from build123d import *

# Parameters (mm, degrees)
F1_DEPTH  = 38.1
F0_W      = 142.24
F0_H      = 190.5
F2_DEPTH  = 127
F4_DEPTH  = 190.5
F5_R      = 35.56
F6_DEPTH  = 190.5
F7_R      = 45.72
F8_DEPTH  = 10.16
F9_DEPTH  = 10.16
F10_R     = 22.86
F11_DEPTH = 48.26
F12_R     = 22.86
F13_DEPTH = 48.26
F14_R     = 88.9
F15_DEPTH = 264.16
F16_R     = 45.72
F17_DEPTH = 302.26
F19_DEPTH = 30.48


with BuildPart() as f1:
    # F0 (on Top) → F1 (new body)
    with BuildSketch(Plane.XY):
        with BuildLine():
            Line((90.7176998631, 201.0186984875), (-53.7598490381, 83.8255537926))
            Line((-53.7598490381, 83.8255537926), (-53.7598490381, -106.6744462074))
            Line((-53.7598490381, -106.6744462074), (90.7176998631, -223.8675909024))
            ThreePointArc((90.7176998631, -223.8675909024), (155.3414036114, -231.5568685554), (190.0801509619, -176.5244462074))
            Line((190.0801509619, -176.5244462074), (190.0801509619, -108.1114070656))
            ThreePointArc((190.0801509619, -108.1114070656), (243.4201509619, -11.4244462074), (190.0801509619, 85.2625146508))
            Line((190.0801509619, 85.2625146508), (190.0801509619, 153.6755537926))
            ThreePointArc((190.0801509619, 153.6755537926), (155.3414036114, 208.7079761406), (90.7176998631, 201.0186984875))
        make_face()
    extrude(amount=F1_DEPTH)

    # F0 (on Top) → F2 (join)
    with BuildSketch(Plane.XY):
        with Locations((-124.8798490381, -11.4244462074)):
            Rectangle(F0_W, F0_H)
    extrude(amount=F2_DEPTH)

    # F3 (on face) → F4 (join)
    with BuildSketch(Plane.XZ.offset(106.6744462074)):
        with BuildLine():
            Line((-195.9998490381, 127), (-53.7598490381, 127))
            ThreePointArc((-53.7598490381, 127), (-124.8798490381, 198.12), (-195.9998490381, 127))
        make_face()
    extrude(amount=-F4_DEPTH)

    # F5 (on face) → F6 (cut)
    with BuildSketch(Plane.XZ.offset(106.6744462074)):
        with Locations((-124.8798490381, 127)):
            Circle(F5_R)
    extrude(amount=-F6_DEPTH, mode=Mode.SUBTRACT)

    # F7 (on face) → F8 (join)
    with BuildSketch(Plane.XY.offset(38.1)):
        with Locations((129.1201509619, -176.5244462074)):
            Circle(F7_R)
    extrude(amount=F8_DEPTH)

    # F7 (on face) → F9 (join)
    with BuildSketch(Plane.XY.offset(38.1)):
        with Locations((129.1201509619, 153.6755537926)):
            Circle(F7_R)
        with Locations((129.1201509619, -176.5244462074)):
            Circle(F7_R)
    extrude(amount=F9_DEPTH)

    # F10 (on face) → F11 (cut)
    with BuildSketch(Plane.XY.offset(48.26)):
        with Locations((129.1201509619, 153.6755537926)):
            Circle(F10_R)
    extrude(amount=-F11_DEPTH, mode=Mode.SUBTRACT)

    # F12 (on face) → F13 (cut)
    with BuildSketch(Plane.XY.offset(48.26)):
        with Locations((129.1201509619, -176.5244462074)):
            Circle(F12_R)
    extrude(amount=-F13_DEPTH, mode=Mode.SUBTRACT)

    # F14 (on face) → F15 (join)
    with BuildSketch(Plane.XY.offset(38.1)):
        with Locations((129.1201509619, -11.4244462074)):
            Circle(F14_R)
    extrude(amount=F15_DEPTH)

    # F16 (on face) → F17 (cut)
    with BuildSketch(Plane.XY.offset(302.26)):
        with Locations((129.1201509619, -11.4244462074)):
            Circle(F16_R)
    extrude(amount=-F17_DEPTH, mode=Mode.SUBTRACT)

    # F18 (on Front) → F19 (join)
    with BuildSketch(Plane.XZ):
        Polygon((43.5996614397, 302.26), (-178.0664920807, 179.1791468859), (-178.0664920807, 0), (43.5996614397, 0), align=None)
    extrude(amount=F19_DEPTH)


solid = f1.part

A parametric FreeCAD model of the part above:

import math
import FreeCAD as App
import Part
import Sketcher
Q = App.Units.Quantity

doc = App.newDocument("Part")
body = doc.addObject("PartDesign::Body", "Body")

# Sketch on XY plane
sketch1 = doc.addObject("Sketcher::SketchObject", "Sketch")
body.addObject(sketch1)
sketch1.AttachmentSupport = (doc.XY_Plane, [""])
sketch1.MapMode = "FlatFace"
sketch1.addGeometry(Part.LineSegment(App.Vector(91, 201, 0), App.Vector(-54, 84, 0)), False)
sketch1.addGeometry(Part.LineSegment(App.Vector(-54, 84, 0), App.Vector(-54, -107, 0)), False)
sketch1.addGeometry(Part.LineSegment(App.Vector(-54, -107, 0), App.Vector(91, -224, 0)), False)
sketch1.addGeometry(Part.ArcOfCircle(Part.Circle(App.Vector(129, -177, 0), App.Vector(0, 0, 1), 61), math.radians(-129), math.radians(0)), False)
sketch1.addGeometry(Part.LineSegment(App.Vector(190, -177, 0), App.Vector(190, -108, 0)), False)
sketch1.addGeometry(Part.ArcOfCircle(Part.Circle(App.Vector(129, -11, 0), App.Vector(0, 0, 1), 114), math.radians(-58), math.radians(58)), False)
sketch1.addGeometry(Part.LineSegment(App.Vector(190, 85, 0), App.Vector(190, 154, 0)), False)
sketch1.addGeometry(Part.ArcOfCircle(Part.Circle(App.Vector(129, 154, 0), App.Vector(0, 0, 1), 61), math.radians(0), math.radians(129)), False)
sketch1.addConstraint(Sketcher.Constraint("Coincident", 0, 2, 1, 1))
sketch1.addConstraint(Sketcher.Constraint("Coincident", 1, 2, 2, 1))
sketch1.addConstraint(Sketcher.Constraint("Tangent", 2, 2, 3, 1))
sketch1.addConstraint(Sketcher.Constraint("Tangent", 3, 2, 4, 1))
sketch1.addConstraint(Sketcher.Constraint("Coincident", 4, 2, 5, 1))
sketch1.addConstraint(Sketcher.Constraint("Coincident", 5, 2, 6, 1))
sketch1.addConstraint(Sketcher.Constraint("Tangent", 6, 2, 7, 1))
sketch1.addConstraint(Sketcher.Constraint("Tangent", 7, 2, 0, 1))
sketch1.addConstraint(Sketcher.Constraint("Vertical", 1))
sketch1.addConstraint(Sketcher.Constraint("Vertical", 4))
sketch1.addConstraint(Sketcher.Constraint("Vertical", 6))
sketch1.addConstraint(Sketcher.Constraint("Equal", 3, 7))
sketch1.addConstraint(Sketcher.Constraint("Vertical", 3, 3, 5, 3))
sketch1.addConstraint(Sketcher.Constraint("Vertical", 5, 3, 7, 3))
sketch1.addConstraint(Sketcher.Constraint("Vertical", 2, 2, 7, 2))
sketch1.addConstraint(Sketcher.Constraint("Equal", 4, 6))
sketch1.addConstraint(Sketcher.Constraint("Radius", 3, Q("2.4 in")))
sketch1.addConstraint(Sketcher.Constraint("Radius", 5, Q("4.5 in")))
sketch1.addConstraint(Sketcher.Constraint("DistanceY", 1, 2, 1, 1, Q("7.5 in")))
sketch1.addConstraint(Sketcher.Constraint("DistanceY", 3, 3, 7, 3, Q("13 in")))
sketch1.addConstraint(Sketcher.Constraint("DistanceX", 0, 2, 7, 3, Q("7.2 in")))
sketch1.addConstraint(Sketcher.Constraint("DistanceX", -1, 1, 2, 2, Q("90.7177 mm")))
sketch1.addConstraint(Sketcher.Constraint("DistanceY", -1, 1, 7, 2, Q("201.018698 mm")))
pad1 = doc.addObject("PartDesign::Pad", "Pad")
body.addObject(pad1)
pad1.Profile = sketch1
pad1.Length = Q("1.5 in")

# Sketch on XY plane
sketch2 = doc.addObject("Sketcher::SketchObject", "Sketch001")
body.addObject(sketch2)
sketch2.AttachmentSupport = (doc.XY_Plane, [""])
sketch2.MapMode = "FlatFace"
sketch2.addGeometry(Part.LineSegment(App.Vector(-196, 84, 0), App.Vector(-196, -107, 0)), False)
sketch2.addGeometry(Part.LineSegment(App.Vector(-196, -107, 0), App.Vector(-54, -107, 0)), False)
sketch2.addGeometry(Part.LineSegment(App.Vector(-54, -107, 0), App.Vector(-54, 84, 0)), False)
sketch2.addGeometry(Part.LineSegment(App.Vector(-54, 84, 0), App.Vector(-196, 84, 0)), False)
sketch2.addConstraint(Sketcher.Constraint("Coincident", 0, 2, 1, 1))
sketch2.addConstraint(Sketcher.Constraint("Coincident", 1, 2, 2, 1))
sketch2.addConstraint(Sketcher.Constraint("Coincident", 2, 2, 3, 1))
sketch2.addConstraint(Sketcher.Constraint("Coincident", 3, 2, 0, 1))
sketch2.addConstraint(Sketcher.Constraint("Vertical", 0))
sketch2.addConstraint(Sketcher.Constraint("Horizontal", 1))
sketch2.addConstraint(Sketcher.Constraint("Vertical", 2))
sketch2.addConstraint(Sketcher.Constraint("Horizontal", 3))
sketch2.addConstraint(Sketcher.Constraint("DistanceX", 1, 1, 1, 2, Q("5.6 in")))
sketch2.addConstraint(Sketcher.Constraint("DistanceY", 0, 2, 0, 1, Q("7.5 in")))
sketch2.addConstraint(Sketcher.Constraint("DistanceX", 0, 2, -1, 1, Q("195.999849 mm")))
sketch2.addConstraint(Sketcher.Constraint("DistanceY", 0, 2, -1, 1, Q("106.674446 mm")))
pad2 = doc.addObject("PartDesign::Pad", "Pad001")
body.addObject(pad2)
pad2.Profile = sketch2
pad2.Length = Q("5 in")

# Sketch on XZ plane
sketch3 = doc.addObject("Sketcher::SketchObject", "Sketch002")
body.addObject(sketch3)
sketch3.AttachmentSupport = (doc.XZ_Plane, [""])
sketch3.MapMode = "FlatFace"
sketch3.AttachmentOffset = App.Placement(App.Vector(0, 0, 106.674446), App.Rotation())
sketch3.addGeometry(Part.LineSegment(App.Vector(-196, 127, 0), App.Vector(-54, 127, 0)), False)
sketch3.addGeometry(Part.ArcOfCircle(Part.Circle(App.Vector(-125, 127, 0), App.Vector(0, 0, 1), 71), math.radians(0), math.radians(180)), False)
sketch3.addConstraint(Sketcher.Constraint("Coincident", 0, 1, 1, 2))
sketch3.addConstraint(Sketcher.Constraint("Coincident", 1, 1, 0, 2))
sketch3.addConstraint(Sketcher.Constraint("Horizontal", 0))
sketch3.addConstraint(Sketcher.Constraint("Horizontal", 1, 3, 0, 1))
sketch3.addConstraint(Sketcher.Constraint("Radius", 1, Q("2.8 in")))
sketch3.addConstraint(Sketcher.Constraint("DistanceY", -1, 1, 1, 3, Q("5 in")))
sketch3.addConstraint(Sketcher.Constraint("DistanceX", 1, 3, -1, 1, Q("124.879849 mm")))
pad3 = doc.addObject("PartDesign::Pad", "Pad002")
body.addObject(pad3)
pad3.Profile = sketch3
pad3.Length = Q("7.5 in")
pad3.Reversed = True

# Sketch on XZ plane
sketch4 = doc.addObject("Sketcher::SketchObject", "Sketch003")
body.addObject(sketch4)
sketch4.AttachmentSupport = (doc.XZ_Plane, [""])
sketch4.MapMode = "FlatFace"
sketch4.AttachmentOffset = App.Placement(App.Vector(0, 0, 106.674446), App.Rotation())
sketch4.addGeometry(Part.Circle(App.Vector(-125, 127, 0), App.Vector(0, 0, 1), 36), False)
sketch4.addConstraint(Sketcher.Constraint("Diameter", 0, Q("2.8 in")))
sketch4.addConstraint(Sketcher.Constraint("DistanceY", -1, 1, 0, 3, Q("5 in")))
sketch4.addConstraint(Sketcher.Constraint("DistanceX", 0, 3, -1, 1, Q("124.879849 mm")))
pocket1 = doc.addObject("PartDesign::Pocket", "Pocket")
body.addObject(pocket1)
pocket1.Profile = sketch4
pocket1.Length = Q("7.5 in")

# Sketch on XY plane
sketch5 = doc.addObject("Sketcher::SketchObject", "Sketch004")
body.addObject(sketch5)
sketch5.AttachmentSupport = (doc.XY_Plane, [""])
sketch5.MapMode = "FlatFace"
sketch5.AttachmentOffset = App.Placement(App.Vector(0, 0, 1.5 * 25.4), App.Rotation())
sketch5.addGeometry(Part.Circle(App.Vector(129, -177, 0), App.Vector(0, 0, 1), 46), False)
sketch5.addConstraint(Sketcher.Constraint("Diameter", 0, Q("3.6 in")))
sketch5.addConstraint(Sketcher.Constraint("DistanceX", -1, 1, 0, 3, Q("129.120151 mm")))
sketch5.addConstraint(Sketcher.Constraint("DistanceY", 0, 3, -1, 1, Q("176.524446 mm")))
pad4 = doc.addObject("PartDesign::Pad", "Pad003")
body.addObject(pad4)
pad4.Profile = sketch5
pad4.Length = Q("0.4 in")

# Sketch on XY plane
sketch6 = doc.addObject("Sketcher::SketchObject", "Sketch005")
body.addObject(sketch6)
sketch6.AttachmentSupport = (doc.XY_Plane, [""])
sketch6.MapMode = "FlatFace"
sketch6.AttachmentOffset = App.Placement(App.Vector(0, 0, 1.5 * 25.4), App.Rotation())
sketch6.addGeometry(Part.Circle(App.Vector(129, 154, 0), App.Vector(0, 0, 1), 46), False)
sketch6.addGeometry(Part.Circle(App.Vector(129, -177, 0), App.Vector(0, 0, 1), 46), False)
sketch6.addConstraint(Sketcher.Constraint("Equal", 0, 1))
sketch6.addConstraint(Sketcher.Constraint("Vertical", 0, 3, 1, 3))
sketch6.addConstraint(Sketcher.Constraint("Diameter", 0, Q("3.6 in")))
sketch6.addConstraint(Sketcher.Constraint("DistanceY", 1, 3, 0, 3, Q("13 in")))
sketch6.addConstraint(Sketcher.Constraint("DistanceX", -1, 1, 0, 3, Q("129.120151 mm")))
sketch6.addConstraint(Sketcher.Constraint("DistanceY", -1, 1, 0, 3, Q("153.675554 mm")))
pad5 = doc.addObject("PartDesign::Pad", "Pad004")
body.addObject(pad5)
pad5.Profile = sketch6
pad5.Length = Q("0.4 in")

# Sketch on XY plane
sketch7 = doc.addObject("Sketcher::SketchObject", "Sketch006")
body.addObject(sketch7)
sketch7.AttachmentSupport = (doc.XY_Plane, [""])
sketch7.MapMode = "FlatFace"
sketch7.AttachmentOffset = App.Placement(App.Vector(0, 0, 1.9 * 25.4), App.Rotation())
sketch7.addGeometry(Part.Circle(App.Vector(129, 154, 0), App.Vector(0, 0, 1), 23), False)
sketch7.addConstraint(Sketcher.Constraint("Diameter", 0, Q("1.8 in")))
sketch7.addConstraint(Sketcher.Constraint("DistanceX", -1, 1, 0, 3, Q("129.120151 mm")))
sketch7.addConstraint(Sketcher.Constraint("DistanceY", -1, 1, 0, 3, Q("153.675554 mm")))
pocket2 = doc.addObject("PartDesign::Pocket", "Pocket001")
body.addObject(pocket2)
pocket2.Profile = sketch7
pocket2.Length = Q("1.9 in")

# Sketch on XY plane
sketch8 = doc.addObject("Sketcher::SketchObject", "Sketch007")
body.addObject(sketch8)
sketch8.AttachmentSupport = (doc.XY_Plane, [""])
sketch8.MapMode = "FlatFace"
sketch8.AttachmentOffset = App.Placement(App.Vector(0, 0, 1.9 * 25.4), App.Rotation())
sketch8.addGeometry(Part.Circle(App.Vector(129, -177, 0), App.Vector(0, 0, 1), 23), False)
sketch8.addConstraint(Sketcher.Constraint("Diameter", 0, Q("1.8 in")))
sketch8.addConstraint(Sketcher.Constraint("DistanceX", -1, 1, 0, 3, Q("129.120151 mm")))
sketch8.addConstraint(Sketcher.Constraint("DistanceY", 0, 3, -1, 1, Q("176.524446 mm")))
pocket3 = doc.addObject("PartDesign::Pocket", "Pocket002")
body.addObject(pocket3)
pocket3.Profile = sketch8
pocket3.Length = Q("1.9 in")

# Sketch on XY plane
sketch9 = doc.addObject("Sketcher::SketchObject", "Sketch008")
body.addObject(sketch9)
sketch9.AttachmentSupport = (doc.XY_Plane, [""])
sketch9.MapMode = "FlatFace"
sketch9.AttachmentOffset = App.Placement(App.Vector(0, 0, 1.5 * 25.4), App.Rotation())
sketch9.addGeometry(Part.Circle(App.Vector(129, -11, 0), App.Vector(0, 0, 1), 89), False)
sketch9.addConstraint(Sketcher.Constraint("Diameter", 0, Q("7 in")))
sketch9.addConstraint(Sketcher.Constraint("DistanceX", -1, 1, 0, 3, Q("129.120151 mm")))
sketch9.addConstraint(Sketcher.Constraint("DistanceY", 0, 3, -1, 1, Q("11.424446 mm")))
pad6 = doc.addObject("PartDesign::Pad", "Pad005")
body.addObject(pad6)
pad6.Profile = sketch9
pad6.Length = Q("10.4 in")

# Sketch on XY plane
sketch10 = doc.addObject("Sketcher::SketchObject", "Sketch009")
body.addObject(sketch10)
sketch10.AttachmentSupport = (doc.XY_Plane, [""])
sketch10.MapMode = "FlatFace"
sketch10.AttachmentOffset = App.Placement(App.Vector(0, 0, 11.9 * 25.4), App.Rotation())
sketch10.addGeometry(Part.Circle(App.Vector(129, -11, 0), App.Vector(0, 0, 1), 46), False)
sketch10.addConstraint(Sketcher.Constraint("Diameter", 0, Q("3.6 in")))
sketch10.addConstraint(Sketcher.Constraint("DistanceX", -1, 1, 0, 3, Q("129.120151 mm")))
sketch10.addConstraint(Sketcher.Constraint("DistanceY", 0, 3, -1, 1, Q("11.424446 mm")))
pocket4 = doc.addObject("PartDesign::Pocket", "Pocket003")
body.addObject(pocket4)
pocket4.Profile = sketch10
pocket4.Length = Q("11.9 in")

# Sketch on XZ plane
sketch11 = doc.addObject("Sketcher::SketchObject", "Sketch010")
body.addObject(sketch11)
sketch11.AttachmentSupport = (doc.XZ_Plane, [""])
sketch11.MapMode = "FlatFace"
sketch11.addGeometry(Part.LineSegment(App.Vector(44, 302, 0), App.Vector(-178, 179, 0)), False)
sketch11.addGeometry(Part.LineSegment(App.Vector(-178, 179, 0), App.Vector(-178, 0, 0)), False)
sketch11.addGeometry(Part.LineSegment(App.Vector(-178, 0, 0), App.Vector(44, 0, 0)), False)
sketch11.addGeometry(Part.LineSegment(App.Vector(44, 0, 0), App.Vector(44, 302, 0)), False)
sketch11.addConstraint(Sketcher.Constraint("Coincident", 0, 2, 1, 1))
sketch11.addConstraint(Sketcher.Constraint("Coincident", 1, 2, 2, 1))
sketch11.addConstraint(Sketcher.Constraint("Coincident", 2, 2, 3, 1))
sketch11.addConstraint(Sketcher.Constraint("Coincident", 3, 2, 0, 1))
sketch11.addConstraint(Sketcher.Constraint("Vertical", 1))
sketch11.addConstraint(Sketcher.Constraint("Horizontal", 2))
sketch11.addConstraint(Sketcher.Constraint("Vertical", 3))
sketch11.addConstraint(Sketcher.Constraint("PointOnObject", 1, 2, -1))
sketch11.addConstraint(Sketcher.Constraint("DistanceY", 3, 1, 3, 2, Q("11.9 in")))
sketch11.addConstraint(Sketcher.Constraint("DistanceX", 2, 1, 2, 2, Q("221.666154 mm")))
sketch11.addConstraint(Sketcher.Constraint("DistanceY", 1, 2, 1, 1, Q("179.179147 mm")))
sketch11.addConstraint(Sketcher.Constraint("DistanceX", -1, 1, 2, 2, Q("43.599661 mm")))
pad7 = doc.addObject("PartDesign::Pad", "Pad006")
body.addObject(pad7)
pad7.Profile = sketch11
pad7.Length = Q("1.2 in")

doc.recompute()
